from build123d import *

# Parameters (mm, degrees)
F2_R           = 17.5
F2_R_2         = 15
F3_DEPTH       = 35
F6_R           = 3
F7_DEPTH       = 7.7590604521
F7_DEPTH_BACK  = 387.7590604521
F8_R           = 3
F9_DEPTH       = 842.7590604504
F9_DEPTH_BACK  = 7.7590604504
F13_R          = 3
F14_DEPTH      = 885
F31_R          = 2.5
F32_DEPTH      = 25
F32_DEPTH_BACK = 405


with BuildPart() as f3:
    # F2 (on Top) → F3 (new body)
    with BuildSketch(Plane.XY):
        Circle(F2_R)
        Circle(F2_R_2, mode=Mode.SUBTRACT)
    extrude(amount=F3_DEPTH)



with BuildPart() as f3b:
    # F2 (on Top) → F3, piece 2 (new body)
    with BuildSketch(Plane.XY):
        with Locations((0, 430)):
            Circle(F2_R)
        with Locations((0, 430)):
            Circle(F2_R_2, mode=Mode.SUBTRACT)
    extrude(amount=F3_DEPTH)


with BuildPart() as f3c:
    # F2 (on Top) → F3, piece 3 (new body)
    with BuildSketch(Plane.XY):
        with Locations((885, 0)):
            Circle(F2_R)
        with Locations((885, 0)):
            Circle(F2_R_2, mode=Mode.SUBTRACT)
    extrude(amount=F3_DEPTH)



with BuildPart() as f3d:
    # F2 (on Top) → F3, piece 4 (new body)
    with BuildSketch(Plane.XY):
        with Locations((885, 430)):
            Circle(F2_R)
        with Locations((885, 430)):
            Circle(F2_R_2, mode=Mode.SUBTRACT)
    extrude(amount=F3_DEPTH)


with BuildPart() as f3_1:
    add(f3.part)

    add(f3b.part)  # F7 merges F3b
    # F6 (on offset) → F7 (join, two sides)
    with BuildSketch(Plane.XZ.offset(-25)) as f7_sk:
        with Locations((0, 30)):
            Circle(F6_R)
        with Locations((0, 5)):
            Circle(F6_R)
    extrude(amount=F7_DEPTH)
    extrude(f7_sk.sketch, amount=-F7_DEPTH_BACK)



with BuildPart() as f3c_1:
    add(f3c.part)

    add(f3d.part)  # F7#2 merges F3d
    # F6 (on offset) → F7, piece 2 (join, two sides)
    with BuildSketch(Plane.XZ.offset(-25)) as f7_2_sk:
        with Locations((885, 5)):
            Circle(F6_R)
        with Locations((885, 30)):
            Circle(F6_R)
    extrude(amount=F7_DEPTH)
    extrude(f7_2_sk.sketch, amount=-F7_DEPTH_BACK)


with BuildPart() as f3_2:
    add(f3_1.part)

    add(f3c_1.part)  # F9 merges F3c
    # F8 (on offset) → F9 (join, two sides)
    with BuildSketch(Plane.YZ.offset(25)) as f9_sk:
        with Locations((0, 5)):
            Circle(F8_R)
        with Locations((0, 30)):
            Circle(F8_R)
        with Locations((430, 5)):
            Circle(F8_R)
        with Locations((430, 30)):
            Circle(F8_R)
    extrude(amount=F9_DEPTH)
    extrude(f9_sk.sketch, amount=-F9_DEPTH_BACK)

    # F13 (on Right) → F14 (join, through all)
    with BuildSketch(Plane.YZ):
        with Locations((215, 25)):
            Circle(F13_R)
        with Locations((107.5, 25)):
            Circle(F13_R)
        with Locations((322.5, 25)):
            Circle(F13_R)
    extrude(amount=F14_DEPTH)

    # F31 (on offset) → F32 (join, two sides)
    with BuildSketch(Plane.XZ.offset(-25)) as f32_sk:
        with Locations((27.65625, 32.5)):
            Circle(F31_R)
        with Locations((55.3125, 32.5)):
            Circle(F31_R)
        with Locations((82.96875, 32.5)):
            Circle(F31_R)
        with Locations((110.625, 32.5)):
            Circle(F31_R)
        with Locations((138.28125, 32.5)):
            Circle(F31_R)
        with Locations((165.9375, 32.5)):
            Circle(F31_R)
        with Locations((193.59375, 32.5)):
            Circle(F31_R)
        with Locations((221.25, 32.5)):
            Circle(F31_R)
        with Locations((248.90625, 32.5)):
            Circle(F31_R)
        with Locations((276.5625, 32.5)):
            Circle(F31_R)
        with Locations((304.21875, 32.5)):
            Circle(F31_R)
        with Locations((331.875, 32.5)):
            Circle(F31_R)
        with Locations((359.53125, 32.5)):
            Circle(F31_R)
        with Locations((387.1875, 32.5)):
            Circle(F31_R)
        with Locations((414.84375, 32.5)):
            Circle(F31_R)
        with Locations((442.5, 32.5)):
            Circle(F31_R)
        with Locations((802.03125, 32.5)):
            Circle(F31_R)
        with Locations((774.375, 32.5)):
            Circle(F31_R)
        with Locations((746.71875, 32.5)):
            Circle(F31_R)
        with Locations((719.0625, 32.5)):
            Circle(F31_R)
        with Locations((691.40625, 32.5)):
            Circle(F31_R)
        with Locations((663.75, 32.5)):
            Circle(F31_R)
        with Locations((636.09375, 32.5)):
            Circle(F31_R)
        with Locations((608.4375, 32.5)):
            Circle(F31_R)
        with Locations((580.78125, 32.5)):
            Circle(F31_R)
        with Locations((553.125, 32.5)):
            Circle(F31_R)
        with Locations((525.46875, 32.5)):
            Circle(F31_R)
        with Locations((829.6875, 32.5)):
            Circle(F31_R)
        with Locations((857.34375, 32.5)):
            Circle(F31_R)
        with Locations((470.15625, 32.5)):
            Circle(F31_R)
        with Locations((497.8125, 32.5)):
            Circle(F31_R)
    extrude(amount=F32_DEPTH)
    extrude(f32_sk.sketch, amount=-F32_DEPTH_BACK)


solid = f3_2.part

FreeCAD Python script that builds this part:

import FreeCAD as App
import Part
import Sketcher

V = App.Vector

doc = App.newDocument("Part")
body = doc.addObject("PartDesign::Body", "Body")

# Sketch on XY plane
sketch1 = doc.addObject("Sketcher::SketchObject", "Sketch")
body.addObject(sketch1)
sketch1.AttachmentSupport = (doc.XY_Plane, [""])
sketch1.MapMode = "FlatFace"
sketch1.addGeometry(Part.Circle(V(0, 0, 0), V(0, 0, 1), 18), False)
sketch1.addGeometry(Part.Circle(V(0, 0, 0), V(0, 0, 1), 15), False)
sketch1.addConstraint(Sketcher.Constraint("Coincident", 0, 3, -1, 1))
sketch1.addConstraint(Sketcher.Constraint("Coincident", 1, 3, -1, 1))
sketch1.addConstraint(Sketcher.Constraint("Diameter", 0, 35.0))
sketch1.addConstraint(Sketcher.Constraint("Diameter", 1, 30.0))
pad1 = doc.addObject("PartDesign::Pad", "Pad")
body.addObject(pad1)
pad1.Profile = sketch1
pad1.Length = 35
body2 = doc.addObject("PartDesign::Body", "Body001")

# Sketch on XY plane
sketch2 = doc.addObject("Sketcher::SketchObject", "Sketch001")
body2.addObject(sketch2)
sketch2.AttachmentSupport = (doc.getObject("XY_Plane001"), [""])
sketch2.MapMode = "FlatFace"
sketch2.addGeometry(Part.Circle(V(0, 430, 0), V(0, 0, 1), 18), False)
sketch2.addGeometry(Part.Circle(V(0, 430, 0), V(0, 0, 1), 15), False)
sketch2.addConstraint(Sketcher.Constraint("Coincident", 1, 3, 0, 3))
sketch2.addConstraint(Sketcher.Constraint("PointOnObject", 0, 3, -2))
sketch2.addConstraint(Sketcher.Constraint("Diameter", 0, 35.0))
sketch2.addConstraint(Sketcher.Constraint("Diameter", 1, 30.0))
sketch2.addConstraint(Sketcher.Constraint("DistanceY", -1, 1, 0, 3, 430.0))
pad2 = doc.addObject("PartDesign::Pad", "Pad001")
body2.addObject(pad2)
pad2.Profile = sketch2
pad2.Length = 35
body3 = doc.addObject("PartDesign::Body", "Body002")

# Sketch on XY plane
sketch3 = doc.addObject("Sketcher::SketchObject", "Sketch002")
body3.addObject(sketch3)
sketch3.AttachmentSupport = (doc.getObject("XY_Plane002"), [""])
sketch3.MapMode = "FlatFace"
sketch3.addGeometry(Part.Circle(V(885, 0, 0), V(0, 0, 1), 18), False)
sketch3.addGeometry(Part.Circle(V(885, 0, 0), V(0, 0, 1), 15), False)
sketch3.addConstraint(Sketcher.Constraint("Coincident", 1, 3, 0, 3))
sketch3.addConstraint(Sketcher.Constraint("PointOnObject", 0, 3, -1))
sketch3.addConstraint(Sketcher.Constraint("Diameter", 0, 35.0))
sketch3.addConstraint(Sketcher.Constraint("Diameter", 1, 30.0))
sketch3.addConstraint(Sketcher.Constraint("DistanceX", -1, 1, 0, 3, 885.0))
pad3 = doc.addObject("PartDesign::Pad", "Pad002")
body3.addObject(pad3)
pad3.Profile = sketch3
pad3.Length = 35
body4 = doc.addObject("PartDesign::Body", "Body003")

# Sketch on XY plane
sketch4 = doc.addObject("Sketcher::SketchObject", "Sketch003")
body4.addObject(sketch4)
sketch4.AttachmentSupport = (doc.getObject("XY_Plane003"), [""])
sketch4.MapMode = "FlatFace"
sketch4.addGeometry(Part.Circle(V(885, 430, 0), V(0, 0, 1), 18), False)
sketch4.addGeometry(Part.Circle(V(885, 430, 0), V(0, 0, 1), 15), False)
sketch4.addConstraint(Sketcher.Constraint("Coincident", 1, 3, 0, 3))
sketch4.addConstraint(Sketcher.Constraint("Diameter", 0, 35.0))
sketch4.addConstraint(Sketcher.Constraint("Diameter", 1, 30.0))
sketch4.addConstraint(Sketcher.Constraint("DistanceX", -1, 1, 0, 3, 885.0))
sketch4.addConstraint(Sketcher.Constraint("DistanceY", -1, 1, 0, 3, 430.0))
pad4 = doc.addObject("PartDesign::Pad", "Pad003")
body4.addObject(pad4)
pad4.Profile = sketch4
pad4.Length = 35
body.AllowCompound = True
doc.recompute()

boolean = doc.addObject("PartDesign::Boolean", "Boolean")
body.addObject(boolean)
boolean.Type = "Fuse"
boolean.addObjects([body2])

# Sketch on XZ plane
sketch5 = doc.addObject("Sketcher::SketchObject", "Sketch004")
body.addObject(sketch5)
sketch5.AttachmentSupport = (doc.XZ_Plane, [""])
sketch5.MapMode = "FlatFace"
sketch5.AttachmentOffset = App.Placement(V(0, 0, -25), App.Rotation())
sketch5.addGeometry(Part.Circle(V(0, 30, 0), V(0, 0, 1), 3), False)
sketch5.addGeometry(Part.Circle(V(0, 5, 0), V(0, 0, 1), 3), False)
sketch5.addConstraint(Sketcher.Constraint("Equal", 0, 1))
sketch5.addConstraint(Sketcher.Constraint("PointOnObject", 0, 3, -2))
sketch5.addConstraint(Sketcher.Constraint("PointOnObject", 1, 3, -2))
sketch5.addConstraint(Sketcher.Constraint("Diameter", 0, 6.0))
sketch5.addConstraint(Sketcher.Constraint("DistanceY", -1, 1, 0, 3, 30.0))
sketch5.addConstraint(Sketcher.Constraint("DistanceY", -1, 1, 1, 3, 5.0))
pad5 = doc.addObject("PartDesign::Pad", "Pad004")
body.addObject(pad5)
pad5.Profile = sketch5
pad5.Type = "TwoLengths"
pad5.Length = 7.75906
pad5.Length2 = 387.75906
body3.AllowCompound = True
doc.recompute()

boolean2 = doc.addObject("PartDesign::Boolean", "Boolean001")
body3.addObject(boolean2)
boolean2.Type = "Fuse"
boolean2.addObjects([body4])

# Sketch on XZ plane
sketch6 = doc.addObject("Sketcher::SketchObject", "Sketch005")
body3.addObject(sketch6)
sketch6.AttachmentSupport = (doc.getObject("XZ_Plane002"), [""])
sketch6.MapMode = "FlatFace"
sketch6.AttachmentOffset = App.Placement(V(0, 0, -25), App.Rotation())
sketch6.addGeometry(Part.Circle(V(885, 5, 0), V(0, 0, 1), 3), False)
sketch6.addGeometry(Part.Circle(V(885, 30, 0), V(0, 0, 1), 3), False)
sketch6.addConstraint(Sketcher.Constraint("Equal", 0, 1))
sketch6.addConstraint(Sketcher.Constraint("Vertical", 0, 3, 1, 3))
sketch6.addConstraint(Sketcher.Constraint("Diameter", 0, 6.0))
sketch6.addConstraint(Sketcher.Constraint("DistanceX", -1, 1, 0, 3, 885.0))
sketch6.addConstraint(Sketcher.Constraint("DistanceY", -1, 1, 0, 3, 5.0))
sketch6.addConstraint(Sketcher.Constraint("DistanceY", -1, 1, 1, 3, 30.0))
pad6 = doc.addObject("PartDesign::Pad", "Pad005")
body3.addObject(pad6)
pad6.Profile = sketch6
pad6.Type = "TwoLengths"
pad6.Length = 7.75906
pad6.Length2 = 387.75906
body.AllowCompound = True
doc.recompute()

boolean3 = doc.addObject("PartDesign::Boolean", "Boolean002")
body.addObject(boolean3)
boolean3.Type = "Fuse"
boolean3.addObjects([body3])

# Sketch on YZ plane
sketch7 = doc.addObject("Sketcher::SketchObject", "Sketch006")
body.addObject(sketch7)
sketch7.AttachmentSupport = (doc.YZ_Plane, [""])
sketch7.MapMode = "FlatFace"
sketch7.AttachmentOffset = App.Placement(V(0, 0, 25), App.Rotation())
sketch7.addGeometry(Part.Circle(V(0, 5, 0), V(0, 0, 1), 3), False)
sketch7.addGeometry(Part.Circle(V(0, 30, 0), V(0, 0, 1), 3), False)
sketch7.addGeometry(Part.Circle(V(430, 5, 0), V(0, 0, 1), 3), False)
sketch7.addGeometry(Part.Circle(V(430, 30, 0), V(0, 0, 1), 3), False)
sketch7.addConstraint(Sketcher.Constraint("Equal", 0, 1))
sketch7.addConstraint(Sketcher.Constraint("Equal", 1, 2))
sketch7.addConstraint(Sketcher.Constraint("Equal", 2, 3))
sketch7.addConstraint(Sketcher.Constraint("PointOnObject", 0, 3, -2))
sketch7.addConstraint(Sketcher.Constraint("PointOnObject", 1, 3, -2))
sketch7.addConstraint(Sketcher.Constraint("Horizontal", 0, 3, 2, 3))
sketch7.addConstraint(Sketcher.Constraint("Horizontal", 1, 3, 3, 3))
sketch7.addConstraint(Sketcher.Constraint("Vertical", 2, 3, 3, 3))
sketch7.addConstraint(Sketcher.Constraint("Diameter", 0, 6.0))
sketch7.addConstraint(Sketcher.Constraint("DistanceY", -1, 1, 0, 3, 5.0))
sketch7.addConstraint(Sketcher.Constraint("DistanceY", -1, 1, 1, 3, 30.0))
sketch7.addConstraint(Sketcher.Constraint("DistanceX", -1, 1, 2, 3, 430.0))
pad7 = doc.addObject("PartDesign::Pad", "Pad006")
body.addObject(pad7)
pad7.Profile = sketch7
pad7.Type = "TwoLengths"
pad7.Length = 842.75906
pad7.Length2 = 7.75906

# Sketch on YZ plane
sketch8 = doc.addObject("Sketcher::SketchObject", "Sketch007")
body.addObject(sketch8)
sketch8.AttachmentSupport = (doc.YZ_Plane, [""])
sketch8.MapMode = "FlatFace"
sketch8.addGeometry(Part.Circle(V(215, 25, 0), V(0, 0, 1), 3), False)
sketch8.addGeometry(Part.Circle(V(107.5, 25, 0), V(0, 0, 1), 3), False)
sketch8.addGeometry(Part.Circle(V(322.5, 25, 0), V(0, 0, 1), 3), False)
sketch8.addConstraint(Sketcher.Constraint("Equal", 0, 1))
sketch8.addConstraint(Sketcher.Constraint("Equal", 1, 2))
sketch8.addConstraint(Sketcher.Constraint("Horizontal", 0, 3, 1, 3))
sketch8.addConstraint(Sketcher.Constraint("Horizontal", 1, 3, 2, 3))
sketch8.addConstraint(Sketcher.Constraint("Diameter", 0, 6.0))
sketch8.addConstraint(Sketcher.Constraint("DistanceX", -1, 1, 0, 3, 215.0))
sketch8.addConstraint(Sketcher.Constraint("DistanceY", -1, 1, 0, 3, 25.0))
sketch8.addConstraint(Sketcher.Constraint("DistanceX", 1, 3, 2, 3, 215.0))
sketch8.addConstraint(Sketcher.Constraint("DistanceX", -1, 1, 1, 3, 107.5))
pad8 = doc.addObject("PartDesign::Pad", "Pad007")
body.addObject(pad8)
pad8.Profile = sketch8
pad8.Length = 885

# Sketch on XZ plane
sketch9 = doc.addObject("Sketcher::SketchObject", "Sketch008")
body.addObject(sketch9)
sketch9.AttachmentSupport = (doc.XZ_Plane, [""])
sketch9.MapMode = "FlatFace"
sketch9.AttachmentOffset = App.Placement(V(0, 0, -25), App.Rotation())
sketch9.addGeometry(Part.Circle(V(27.7, 32.5, 0), V(0, 0, 1), 2.5), False)
sketch9.addGeometry(Part.Circle(V(55.3, 32.5, 0), V(0, 0, 1), 2.5), False)
sketch9.addGeometry(Part.Circle(V(83, 32.5, 0), V(0, 0, 1), 2.5), False)
sketch9.addGeometry(Part.Circle(V(110.6, 32.5, 0), V(0, 0, 1), 2.5), False)
sketch9.addGeometry(Part.Circle(V(138.3, 32.5, 0), V(0, 0, 1), 2.5), False)
sketch9.addGeometry(Part.Circle(V(165.9, 32.5, 0), V(0, 0, 1), 2.5), False)
sketch9.addGeometry(Part.Circle(V(193.6, 32.5, 0), V(0, 0, 1), 2.5), False)
sketch9.addGeometry(Part.Circle(V(221.2, 32.5, 0), V(0, 0, 1), 2.5), False)
sketch9.addGeometry(Part.Circle(V(248.9, 32.5, 0), V(0, 0, 1), 2.5), False)
sketch9.addGeometry(Part.Circle(V(276.6, 32.5, 0), V(0, 0, 1), 2.5), False)
sketch9.addGeometry(Part.Circle(V(304.2, 32.5, 0), V(0, 0, 1), 2.5), False)
sketch9.addGeometry(Part.Circle(V(331.9, 32.5, 0), V(0, 0, 1), 2.5), False)
sketch9.addGeometry(Part.Circle(V(359.5, 32.5, 0), V(0, 0, 1), 2.5), False)
sketch9.addGeometry(Part.Circle(V(387.2, 32.5, 0), V(0, 0, 1), 2.5), False)
sketch9.addGeometry(Part.Circle(V(414.8, 32.5, 0), V(0, 0, 1), 2.5), False)
sketch9.addGeometry(Part.Circle(V(442.5, 32.5, 0), V(0, 0, 1), 2.5), False)
sketch9.addGeometry(Part.Circle(V(802, 32.5, 0), V(0, 0, 1), 2.5), False)
sketch9.addGeometry(Part.Circle(V(774.4, 32.5, 0), V(0, 0, 1), 2.5), False)
sketch9.addGeometry(Part.Circle(V(746.7, 32.5, 0), V(0, 0, 1), 2.5), False)
sketch9.addGeometry(Part.Circle(V(719.1, 32.5, 0), V(0, 0, 1), 2.5), False)
sketch9.addGeometry(Part.Circle(V(691.4, 32.5, 0), V(0, 0, 1), 2.5), False)
sketch9.addGeometry(Part.Circle(V(663.8, 32.5, 0), V(0, 0, 1), 2.5), False)
sketch9.addGeometry(Part.Circle(V(636.1, 32.5, 0), V(0, 0, 1), 2.5), False)
sketch9.addGeometry(Part.Circle(V(608.4, 32.5, 0), V(0, 0, 1), 2.5), False)
sketch9.addGeometry(Part.Circle(V(580.8, 32.5, 0), V(0, 0, 1), 2.5), False)
sketch9.addGeometry(Part.Circle(V(553.1, 32.5, 0), V(0, 0, 1), 2.5), False)
sketch9.addGeometry(Part.Circle(V(525.5, 32.5, 0), V(0, 0, 1), 2.5), False)
sketch9.addGeometry(Part.Circle(V(829.7, 32.5, 0), V(0, 0, 1), 2.5), False)
sketch9.addGeometry(Part.Circle(V(857.3, 32.5, 0), V(0, 0, 1), 2.5), False)
sketch9.addGeometry(Part.Circle(V(470.2, 32.5, 0), V(0, 0, 1), 2.5), False)
sketch9.addGeometry(Part.Circle(V(497.8, 32.5, 0), V(0, 0, 1), 2.5), False)
sketch9.addConstraint(Sketcher.Constraint("Equal", 0, 1))
sketch9.addConstraint(Sketcher.Constraint("Equal", 1, 2))
sketch9.addConstraint(Sketcher.Constraint("Equal", 2, 3))
sketch9.addConstraint(Sketcher.Constraint("Equal", 3, 4))
sketch9.addConstraint(Sketcher.Constraint("Equal", 4, 5))
sketch9.addConstraint(Sketcher.Constraint("Equal", 5, 6))
sketch9.addConstraint(Sketcher.Constraint("Equal", 6, 7))
sketch9.addConstraint(Sketcher.Constraint("Equal", 7, 8))
sketch9.addConstraint(Sketcher.Constraint("Equal", 8, 9))
sketch9.addConstraint(Sketcher.Constraint("Equal", 9, 10))
sketch9.addConstraint(Sketcher.Constraint("Equal", 10, 11))
sketch9.addConstraint(Sketcher.Constraint("Equal", 11, 12))
sketch9.addConstraint(Sketcher.Constraint("Equal", 12, 13))
sketch9.addConstraint(Sketcher.Constraint("Equal", 13, 14))
sketch9.addConstraint(Sketcher.Constraint("Equal", 14, 15))
sketch9.addConstraint(Sketcher.Constraint("Equal", 15, 16))
sketch9.addConstraint(Sketcher.Constraint("Equal", 16, 17))
sketch9.addConstraint(Sketcher.Constraint("Equal", 17, 18))
sketch9.addConstraint(Sketcher.Constraint("Equal", 18, 19))
sketch9.addConstraint(Sketcher.Constraint("Equal", 19, 20))
sketch9.addConstraint(Sketcher.Constraint("Equal", 20, 21))
sketch9.addConstraint(Sketcher.Constraint("Equal", 21, 22))
sketch9.addConstraint(Sketcher.Constraint("Equal", 22, 23))
sketch9.addConstraint(Sketcher.Constraint("Equal", 23, 24))
sketch9.addConstraint(Sketcher.Constraint("Equal", 24, 25))
sketch9.addConstraint(Sketcher.Constraint("Equal", 25, 26))
sketch9.addConstraint(Sketcher.Constraint("Equal", 26, 27))
sketch9.addConstraint(Sketcher.Constraint("Equal", 27, 28))
sketch9.addConstraint(Sketcher.Constraint("Equal", 28, 29))
sketch9.addConstraint(Sketcher.Constraint("Equal", 29, 30))
sketch9.addConstraint(Sketcher.Constraint("Horizontal", 0, 3, 1, 3))
sketch9.addConstraint(Sketcher.Constraint("Horizontal", 1, 3, 2, 3))
sketch9.addConstraint(Sketcher.Constraint("Horizontal", 2, 3, 3, 3))
sketch9.addConstraint(Sketcher.Constraint("Horizontal", 3, 3, 4, 3))
sketch9.addConstraint(Sketcher.Constraint("Horizontal", 4, 3, 5, 3))
sketch9.addConstraint(Sketcher.Constraint("Horizontal", 5, 3, 6, 3))
sketch9.addConstraint(Sketcher.Constraint("Horizontal", 6, 3, 7, 3))
sketch9.addConstraint(Sketcher.Constraint("Horizontal", 7, 3, 8, 3))
sketch9.addConstraint(Sketcher.Constraint("Horizontal", 8, 3, 9, 3))
sketch9.addConstraint(Sketcher.Constraint("Horizontal", 9, 3, 10, 3))
sketch9.addConstraint(Sketcher.Constraint("Horizontal", 10, 3, 11, 3))
sketch9.addConstraint(Sketcher.Constraint("Horizontal", 11, 3, 12, 3))
sketch9.addConstraint(Sketcher.Constraint("Horizontal", 12, 3, 13, 3))
sketch9.addConstraint(Sketcher.Constraint("Horizontal", 13, 3, 14, 3))
sketch9.addConstraint(Sketcher.Constraint("Horizontal", 14, 3, 15, 3))
sketch9.addConstraint(Sketcher.Constraint("Horizontal", 15, 3, 16, 3))
sketch9.addConstraint(Sketcher.Constraint("Horizontal", 16, 3, 17, 3))
sketch9.addConstraint(Sketcher.Constraint("Horizontal", 17, 3, 18, 3))
sketch9.addConstraint(Sketcher.Constraint("Horizontal", 18, 3, 19, 3))
sketch9.addConstraint(Sketcher.Constraint("Horizontal", 19, 3, 20, 3))
sketch9.addConstraint(Sketcher.Constraint("Horizontal", 20, 3, 21, 3))
sketch9.addConstraint(Sketcher.Constraint("Horizontal", 21, 3, 22, 3))
sketch9.addConstraint(Sketcher.Constraint("Horizontal", 22, 3, 23, 3))
sketch9.addConstraint(Sketcher.Constraint("Horizontal", 23, 3, 24, 3))
sketch9.addConstraint(Sketcher.Constraint("Horizontal", 24, 3, 25, 3))
sketch9.addConstraint(Sketcher.Constraint("Horizontal", 25, 3, 26, 3))
sketch9.addConstraint(Sketcher.Constraint("Horizontal", 26, 3, 27, 3))
sketch9.addConstraint(Sketcher.Constraint("Horizontal", 27, 3, 28, 3))
sketch9.addConstraint(Sketcher.Constraint("Horizontal", 28, 3, 29, 3))
sketch9.addConstraint(Sketcher.Constraint("Horizontal", 29, 3, 30, 3))
sketch9.addConstraint(Sketcher.Constraint("Diameter", 0, 5.0))
sketch9.addConstraint(Sketcher.Constraint("DistanceY", -1, 1, 0, 3, 32.5))
sketch9.addConstraint(Sketcher.Constraint("DistanceX", -1, 1, 15, 3, 442.5))
sketch9.addConstraint(Sketcher.Constraint("DistanceX", 12, 3, 16, 3, 442.5))
sketch9.addConstraint(Sketcher.Constraint("DistanceX", -1, 1, 7, 3, 221.25))
sketch9.addConstraint(Sketcher.Constraint("DistanceX", -1, 1, 21, 3, 663.75))
sketch9.addConstraint(Sketcher.Constraint("DistanceX", -1, 1, 3, 3, 110.625))
sketch9.addConstraint(Sketcher.Constraint("DistanceX", -1, 1, 11, 3, 331.875))
sketch9.addConstraint(Sketcher.Constraint("DistanceX", -1, 1, 17, 3, 774.375))
sketch9.addConstraint(Sketcher.Constraint("DistanceX", -1, 1, 25, 3, 553.125))
sketch9.addConstraint(Sketcher.Constraint("DistanceX", 0, 3, 4, 3, 110.625))
sketch9.addConstraint(Sketcher.Constraint("DistanceX", 1, 3, 5, 3, 110.625))
sketch9.addConstraint(Sketcher.Constraint("DistanceX", 2, 3, 6, 3, 110.625))
sketch9.addConstraint(Sketcher.Constraint("DistanceX", 4, 3, 8, 3, 110.625))
sketch9.addConstraint(Sketcher.Constraint("DistanceX", 5, 3, 9, 3, 110.625))
sketch9.addConstraint(Sketcher.Constraint("DistanceX", 6, 3, 10, 3, 110.625))
sketch9.addConstraint(Sketcher.Constraint("DistanceX", 8, 3, 12, 3, 110.625))
sketch9.addConstraint(Sketcher.Constraint("DistanceX", 9, 3, 13, 3, 110.625))
sketch9.addConstraint(Sketcher.Constraint("DistanceX", 10, 3, 14, 3, 110.625))
sketch9.addConstraint(Sketcher.Constraint("DistanceX", 14, 3, 18, 3, 331.875))
sketch9.addConstraint(Sketcher.Constraint("DistanceX", 20, 3, 16, 3, 110.625))
sketch9.addConstraint(Sketcher.Constraint("DistanceX", 22, 3, 18, 3, 110.625))
sketch9.addConstraint(Sketcher.Constraint("DistanceX", 23, 3, 19, 3, 110.625))
sketch9.addConstraint(Sketcher.Constraint("DistanceX", 24, 3, 20, 3, 110.625))
sketch9.addConstraint(Sketcher.Constraint("DistanceX", 14, 3, 26, 3, 110.625))
sketch9.addConstraint(Sketcher.Constraint("DistanceX", 19, 3, 27, 3, 110.625))
sketch9.addConstraint(Sketcher.Constraint("DistanceX", 18, 3, 28, 3, 110.625))
sketch9.addConstraint(Sketcher.Constraint("DistanceX", -1, 1, 1, 3, 55.3125))
sketch9.addConstraint(Sketcher.Constraint("DistanceX", -1, 1, 19, 3, 719.0625))
sketch9.addConstraint(Sketcher.Constraint("DistanceX", -1, 1, 30, 3, 497.8125))
sketch9.addConstraint(Sketcher.Constraint("DistanceX", 0, 3, 2, 3, 55.3125))
sketch9.addConstraint(Sketcher.Constraint("DistanceX", 14, 3, 29, 3, 55.3125))
sketch9.addConstraint(Sketcher.Constraint("DistanceX", -1, 1, 0, 3, 27.65625))
pad9 = doc.addObject("PartDesign::Pad", "Pad008")
body.addObject(pad9)
pad9.Profile = sketch9
pad9.Type = "TwoLengths"
pad9.Length = 25
pad9.Length2 = 405

doc.recompute()
